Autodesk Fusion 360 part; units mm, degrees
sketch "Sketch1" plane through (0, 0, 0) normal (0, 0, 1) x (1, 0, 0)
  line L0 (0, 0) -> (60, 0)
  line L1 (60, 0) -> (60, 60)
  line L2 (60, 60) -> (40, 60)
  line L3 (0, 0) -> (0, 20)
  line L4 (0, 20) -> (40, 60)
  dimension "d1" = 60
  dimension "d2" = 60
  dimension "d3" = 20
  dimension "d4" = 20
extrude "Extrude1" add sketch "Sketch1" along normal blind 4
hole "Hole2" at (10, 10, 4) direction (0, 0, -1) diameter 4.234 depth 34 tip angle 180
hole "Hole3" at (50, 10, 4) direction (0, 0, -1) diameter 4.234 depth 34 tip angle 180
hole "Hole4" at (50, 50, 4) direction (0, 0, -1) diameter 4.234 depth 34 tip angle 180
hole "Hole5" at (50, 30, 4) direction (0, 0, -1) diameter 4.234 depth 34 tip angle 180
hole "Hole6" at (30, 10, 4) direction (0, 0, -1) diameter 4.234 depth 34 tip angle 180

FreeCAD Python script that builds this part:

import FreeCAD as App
import Part
import Sketcher

V = App.Vector

doc = App.newDocument("Part")
body = doc.addObject("PartDesign::Body", "Body")

# Sketch on XY plane
sketch1 = body.newObject("Sketcher::SketchObject", "Sketch")
sketch1.AttachmentSupport = (doc.getObject("XY_Plane"), [""])
sketch1.MapMode = "FlatFace"
sketch1.addGeometry([
    Part.LineSegment(V(0, 20, 0), V(0, 0, 0)),  # 0
    Part.LineSegment(V(0, 0, 0), V(60, 0, 0)),  # 1
    Part.LineSegment(V(60, 0, 0), V(60, 60, 0)),  # 2
    Part.LineSegment(V(60, 60, 0), V(40, 60, 0)),  # 3
    Part.LineSegment(V(40, 60, 0), V(0, 20, 0)),  # 4
], False)
sketch1.addConstraint([
    Sketcher.Constraint("Coincident", 0, 2, 1, 1),
    Sketcher.Constraint("Coincident", 1, 2, 2, 1),
    Sketcher.Constraint("Coincident", 2, 2, 3, 1),
    Sketcher.Constraint("Coincident", 3, 2, 4, 1),
    Sketcher.Constraint("Coincident", 4, 2, 0, 1),
    Sketcher.Constraint("Vertical", 0),
    Sketcher.Constraint("Horizontal", 1),
    Sketcher.Constraint("Vertical", 2),
    Sketcher.Constraint("Horizontal", 3),
    Sketcher.Constraint("Coincident", 0, 2, -1, 1),
    Sketcher.Constraint("Equal", 3, 0),
    Sketcher.Constraint("Equal", 1, 2),
    Sketcher.Constraint("DistanceX", 1, 1, 1, 2, 60.0),
    Sketcher.Constraint("DistanceX", 3, 2, 3, 1, 20.0),
])
pad1 = body.newObject("PartDesign::Pad", "Pad")
pad1.Profile = sketch1
pad1.Length = 4

# Sketch on XY plane
sketch2 = body.newObject("Sketcher::SketchObject", "Sketch001")
sketch2.AttachmentSupport = (doc.getObject("XY_Plane"), [""])
sketch2.MapMode = "FlatFace"
sketch2.AttachmentOffset = App.Placement(V(0, 0, 4), App.Rotation())
sketch2.addGeometry(Part.Circle(V(10, 10, 0), V(0, 0, 1), 2.1), False)
sketch2.addConstraint([
    Sketcher.Constraint("Diameter", 0, 4.234),
    Sketcher.Constraint("DistanceX", -1, 1, 0, 3, 10.0),
    Sketcher.Constraint("DistanceY", -1, 1, 0, 3, 10.0),
])
doc.recompute()
hole = body.newObject("PartDesign::Hole", "Hole")
hole.Profile = sketch2
hole.ThreadType = "None"
hole.Diameter = 4.234
hole.DepthType = "Dimension"
hole.Depth = 34
hole.DrillPoint = "Flat"

# Sketch on XY plane
sketch3 = body.newObject("Sketcher::SketchObject", "Sketch002")
sketch3.AttachmentSupport = (doc.getObject("XY_Plane"), [""])
sketch3.MapMode = "FlatFace"
sketch3.AttachmentOffset = App.Placement(V(0, 0, 4), App.Rotation())
sketch3.addGeometry(Part.Circle(V(50, 10, 0), V(0, 0, 1), 2.1), False)
sketch3.addConstraint([
    Sketcher.Constraint("Diameter", 0, 4.234),
    Sketcher.Constraint("DistanceX", -1, 1, 0, 3, 50.0),
    Sketcher.Constraint("DistanceY", -1, 1, 0, 3, 10.0),
])
doc.recompute()
hole2 = body.newObject("PartDesign::Hole", "Hole001")
hole2.Profile = sketch3
hole2.ThreadType = "None"
hole2.Diameter = 4.234
hole2.DepthType = "Dimension"
hole2.Depth = 34
hole2.DrillPoint = "Flat"

# Sketch on XY plane
sketch4 = body.newObject("Sketcher::SketchObject", "Sketch003")
sketch4.AttachmentSupport = (doc.getObject("XY_Plane"), [""])
sketch4.MapMode = "FlatFace"
sketch4.AttachmentOffset = App.Placement(V(0, 0, 4), App.Rotation())
sketch4.addGeometry(Part.Circle(V(50, 50, 0), V(0, 0, 1), 2.1), False)
sketch4.addConstraint([
    Sketcher.Constraint("Diameter", 0, 4.234),
    Sketcher.Constraint("DistanceX", -1, 1, 0, 3, 50.0),
    Sketcher.Constraint("DistanceY", -1, 1, 0, 3, 50.0),
])
doc.recompute()
hole3 = body.newObject("PartDesign::Hole", "Hole002")
hole3.Profile = sketch4
hole3.ThreadType = "None"
hole3.Diameter = 4.234
hole3.DepthType = "Dimension"
hole3.Depth = 34
hole3.DrillPoint = "Flat"

# Sketch on XY plane
sketch5 = body.newObject("Sketcher::SketchObject", "Sketch004")
sketch5.AttachmentSupport = (doc.getObject("XY_Plane"), [""])
sketch5.MapMode = "FlatFace"
sketch5.AttachmentOffset = App.Placement(V(0, 0, 4), App.Rotation())
sketch5.addGeometry(Part.Circle(V(50, 30, 0), V(0, 0, 1), 2.1), False)
sketch5.addConstraint([
    Sketcher.Constraint("Diameter", 0, 4.234),
    Sketcher.Constraint("DistanceX", -1, 1, 0, 3, 50.0),
    Sketcher.Constraint("DistanceY", -1, 1, 0, 3, 30.0),
])
doc.recompute()
hole4 = body.newObject("PartDesign::Hole", "Hole003")
hole4.Profile = sketch5
hole4.ThreadType = "None"
hole4.Diameter = 4.234
hole4.DepthType = "Dimension"
hole4.Depth = 34
hole4.DrillPoint = "Flat"

# Sketch on XY plane
sketch6 = body.newObject("Sketcher::SketchObject", "Sketch005")
sketch6.AttachmentSupport = (doc.getObject("XY_Plane"), [""])
sketch6.MapMode = "FlatFace"
sketch6.AttachmentOffset = App.Placement(V(0, 0, 4), App.Rotation())
sketch6.addGeometry(Part.Circle(V(30, 10, 0), V(0, 0, 1), 2.1), False)
sketch6.addConstraint([
    Sketcher.Constraint("Diameter", 0, 4.234),
    Sketcher.Constraint("DistanceX", -1, 1, 0, 3, 30.0),
    Sketcher.Constraint("DistanceY", -1, 1, 0, 3, 10.0),
])
doc.recompute()
hole5 = body.newObject("PartDesign::Hole", "Hole004")
hole5.Profile = sketch6
hole5.ThreadType = "None"
hole5.Diameter = 4.234
hole5.DepthType = "Dimension"
hole5.Depth = 34
hole5.DrillPoint = "Flat"

doc.recompute()
